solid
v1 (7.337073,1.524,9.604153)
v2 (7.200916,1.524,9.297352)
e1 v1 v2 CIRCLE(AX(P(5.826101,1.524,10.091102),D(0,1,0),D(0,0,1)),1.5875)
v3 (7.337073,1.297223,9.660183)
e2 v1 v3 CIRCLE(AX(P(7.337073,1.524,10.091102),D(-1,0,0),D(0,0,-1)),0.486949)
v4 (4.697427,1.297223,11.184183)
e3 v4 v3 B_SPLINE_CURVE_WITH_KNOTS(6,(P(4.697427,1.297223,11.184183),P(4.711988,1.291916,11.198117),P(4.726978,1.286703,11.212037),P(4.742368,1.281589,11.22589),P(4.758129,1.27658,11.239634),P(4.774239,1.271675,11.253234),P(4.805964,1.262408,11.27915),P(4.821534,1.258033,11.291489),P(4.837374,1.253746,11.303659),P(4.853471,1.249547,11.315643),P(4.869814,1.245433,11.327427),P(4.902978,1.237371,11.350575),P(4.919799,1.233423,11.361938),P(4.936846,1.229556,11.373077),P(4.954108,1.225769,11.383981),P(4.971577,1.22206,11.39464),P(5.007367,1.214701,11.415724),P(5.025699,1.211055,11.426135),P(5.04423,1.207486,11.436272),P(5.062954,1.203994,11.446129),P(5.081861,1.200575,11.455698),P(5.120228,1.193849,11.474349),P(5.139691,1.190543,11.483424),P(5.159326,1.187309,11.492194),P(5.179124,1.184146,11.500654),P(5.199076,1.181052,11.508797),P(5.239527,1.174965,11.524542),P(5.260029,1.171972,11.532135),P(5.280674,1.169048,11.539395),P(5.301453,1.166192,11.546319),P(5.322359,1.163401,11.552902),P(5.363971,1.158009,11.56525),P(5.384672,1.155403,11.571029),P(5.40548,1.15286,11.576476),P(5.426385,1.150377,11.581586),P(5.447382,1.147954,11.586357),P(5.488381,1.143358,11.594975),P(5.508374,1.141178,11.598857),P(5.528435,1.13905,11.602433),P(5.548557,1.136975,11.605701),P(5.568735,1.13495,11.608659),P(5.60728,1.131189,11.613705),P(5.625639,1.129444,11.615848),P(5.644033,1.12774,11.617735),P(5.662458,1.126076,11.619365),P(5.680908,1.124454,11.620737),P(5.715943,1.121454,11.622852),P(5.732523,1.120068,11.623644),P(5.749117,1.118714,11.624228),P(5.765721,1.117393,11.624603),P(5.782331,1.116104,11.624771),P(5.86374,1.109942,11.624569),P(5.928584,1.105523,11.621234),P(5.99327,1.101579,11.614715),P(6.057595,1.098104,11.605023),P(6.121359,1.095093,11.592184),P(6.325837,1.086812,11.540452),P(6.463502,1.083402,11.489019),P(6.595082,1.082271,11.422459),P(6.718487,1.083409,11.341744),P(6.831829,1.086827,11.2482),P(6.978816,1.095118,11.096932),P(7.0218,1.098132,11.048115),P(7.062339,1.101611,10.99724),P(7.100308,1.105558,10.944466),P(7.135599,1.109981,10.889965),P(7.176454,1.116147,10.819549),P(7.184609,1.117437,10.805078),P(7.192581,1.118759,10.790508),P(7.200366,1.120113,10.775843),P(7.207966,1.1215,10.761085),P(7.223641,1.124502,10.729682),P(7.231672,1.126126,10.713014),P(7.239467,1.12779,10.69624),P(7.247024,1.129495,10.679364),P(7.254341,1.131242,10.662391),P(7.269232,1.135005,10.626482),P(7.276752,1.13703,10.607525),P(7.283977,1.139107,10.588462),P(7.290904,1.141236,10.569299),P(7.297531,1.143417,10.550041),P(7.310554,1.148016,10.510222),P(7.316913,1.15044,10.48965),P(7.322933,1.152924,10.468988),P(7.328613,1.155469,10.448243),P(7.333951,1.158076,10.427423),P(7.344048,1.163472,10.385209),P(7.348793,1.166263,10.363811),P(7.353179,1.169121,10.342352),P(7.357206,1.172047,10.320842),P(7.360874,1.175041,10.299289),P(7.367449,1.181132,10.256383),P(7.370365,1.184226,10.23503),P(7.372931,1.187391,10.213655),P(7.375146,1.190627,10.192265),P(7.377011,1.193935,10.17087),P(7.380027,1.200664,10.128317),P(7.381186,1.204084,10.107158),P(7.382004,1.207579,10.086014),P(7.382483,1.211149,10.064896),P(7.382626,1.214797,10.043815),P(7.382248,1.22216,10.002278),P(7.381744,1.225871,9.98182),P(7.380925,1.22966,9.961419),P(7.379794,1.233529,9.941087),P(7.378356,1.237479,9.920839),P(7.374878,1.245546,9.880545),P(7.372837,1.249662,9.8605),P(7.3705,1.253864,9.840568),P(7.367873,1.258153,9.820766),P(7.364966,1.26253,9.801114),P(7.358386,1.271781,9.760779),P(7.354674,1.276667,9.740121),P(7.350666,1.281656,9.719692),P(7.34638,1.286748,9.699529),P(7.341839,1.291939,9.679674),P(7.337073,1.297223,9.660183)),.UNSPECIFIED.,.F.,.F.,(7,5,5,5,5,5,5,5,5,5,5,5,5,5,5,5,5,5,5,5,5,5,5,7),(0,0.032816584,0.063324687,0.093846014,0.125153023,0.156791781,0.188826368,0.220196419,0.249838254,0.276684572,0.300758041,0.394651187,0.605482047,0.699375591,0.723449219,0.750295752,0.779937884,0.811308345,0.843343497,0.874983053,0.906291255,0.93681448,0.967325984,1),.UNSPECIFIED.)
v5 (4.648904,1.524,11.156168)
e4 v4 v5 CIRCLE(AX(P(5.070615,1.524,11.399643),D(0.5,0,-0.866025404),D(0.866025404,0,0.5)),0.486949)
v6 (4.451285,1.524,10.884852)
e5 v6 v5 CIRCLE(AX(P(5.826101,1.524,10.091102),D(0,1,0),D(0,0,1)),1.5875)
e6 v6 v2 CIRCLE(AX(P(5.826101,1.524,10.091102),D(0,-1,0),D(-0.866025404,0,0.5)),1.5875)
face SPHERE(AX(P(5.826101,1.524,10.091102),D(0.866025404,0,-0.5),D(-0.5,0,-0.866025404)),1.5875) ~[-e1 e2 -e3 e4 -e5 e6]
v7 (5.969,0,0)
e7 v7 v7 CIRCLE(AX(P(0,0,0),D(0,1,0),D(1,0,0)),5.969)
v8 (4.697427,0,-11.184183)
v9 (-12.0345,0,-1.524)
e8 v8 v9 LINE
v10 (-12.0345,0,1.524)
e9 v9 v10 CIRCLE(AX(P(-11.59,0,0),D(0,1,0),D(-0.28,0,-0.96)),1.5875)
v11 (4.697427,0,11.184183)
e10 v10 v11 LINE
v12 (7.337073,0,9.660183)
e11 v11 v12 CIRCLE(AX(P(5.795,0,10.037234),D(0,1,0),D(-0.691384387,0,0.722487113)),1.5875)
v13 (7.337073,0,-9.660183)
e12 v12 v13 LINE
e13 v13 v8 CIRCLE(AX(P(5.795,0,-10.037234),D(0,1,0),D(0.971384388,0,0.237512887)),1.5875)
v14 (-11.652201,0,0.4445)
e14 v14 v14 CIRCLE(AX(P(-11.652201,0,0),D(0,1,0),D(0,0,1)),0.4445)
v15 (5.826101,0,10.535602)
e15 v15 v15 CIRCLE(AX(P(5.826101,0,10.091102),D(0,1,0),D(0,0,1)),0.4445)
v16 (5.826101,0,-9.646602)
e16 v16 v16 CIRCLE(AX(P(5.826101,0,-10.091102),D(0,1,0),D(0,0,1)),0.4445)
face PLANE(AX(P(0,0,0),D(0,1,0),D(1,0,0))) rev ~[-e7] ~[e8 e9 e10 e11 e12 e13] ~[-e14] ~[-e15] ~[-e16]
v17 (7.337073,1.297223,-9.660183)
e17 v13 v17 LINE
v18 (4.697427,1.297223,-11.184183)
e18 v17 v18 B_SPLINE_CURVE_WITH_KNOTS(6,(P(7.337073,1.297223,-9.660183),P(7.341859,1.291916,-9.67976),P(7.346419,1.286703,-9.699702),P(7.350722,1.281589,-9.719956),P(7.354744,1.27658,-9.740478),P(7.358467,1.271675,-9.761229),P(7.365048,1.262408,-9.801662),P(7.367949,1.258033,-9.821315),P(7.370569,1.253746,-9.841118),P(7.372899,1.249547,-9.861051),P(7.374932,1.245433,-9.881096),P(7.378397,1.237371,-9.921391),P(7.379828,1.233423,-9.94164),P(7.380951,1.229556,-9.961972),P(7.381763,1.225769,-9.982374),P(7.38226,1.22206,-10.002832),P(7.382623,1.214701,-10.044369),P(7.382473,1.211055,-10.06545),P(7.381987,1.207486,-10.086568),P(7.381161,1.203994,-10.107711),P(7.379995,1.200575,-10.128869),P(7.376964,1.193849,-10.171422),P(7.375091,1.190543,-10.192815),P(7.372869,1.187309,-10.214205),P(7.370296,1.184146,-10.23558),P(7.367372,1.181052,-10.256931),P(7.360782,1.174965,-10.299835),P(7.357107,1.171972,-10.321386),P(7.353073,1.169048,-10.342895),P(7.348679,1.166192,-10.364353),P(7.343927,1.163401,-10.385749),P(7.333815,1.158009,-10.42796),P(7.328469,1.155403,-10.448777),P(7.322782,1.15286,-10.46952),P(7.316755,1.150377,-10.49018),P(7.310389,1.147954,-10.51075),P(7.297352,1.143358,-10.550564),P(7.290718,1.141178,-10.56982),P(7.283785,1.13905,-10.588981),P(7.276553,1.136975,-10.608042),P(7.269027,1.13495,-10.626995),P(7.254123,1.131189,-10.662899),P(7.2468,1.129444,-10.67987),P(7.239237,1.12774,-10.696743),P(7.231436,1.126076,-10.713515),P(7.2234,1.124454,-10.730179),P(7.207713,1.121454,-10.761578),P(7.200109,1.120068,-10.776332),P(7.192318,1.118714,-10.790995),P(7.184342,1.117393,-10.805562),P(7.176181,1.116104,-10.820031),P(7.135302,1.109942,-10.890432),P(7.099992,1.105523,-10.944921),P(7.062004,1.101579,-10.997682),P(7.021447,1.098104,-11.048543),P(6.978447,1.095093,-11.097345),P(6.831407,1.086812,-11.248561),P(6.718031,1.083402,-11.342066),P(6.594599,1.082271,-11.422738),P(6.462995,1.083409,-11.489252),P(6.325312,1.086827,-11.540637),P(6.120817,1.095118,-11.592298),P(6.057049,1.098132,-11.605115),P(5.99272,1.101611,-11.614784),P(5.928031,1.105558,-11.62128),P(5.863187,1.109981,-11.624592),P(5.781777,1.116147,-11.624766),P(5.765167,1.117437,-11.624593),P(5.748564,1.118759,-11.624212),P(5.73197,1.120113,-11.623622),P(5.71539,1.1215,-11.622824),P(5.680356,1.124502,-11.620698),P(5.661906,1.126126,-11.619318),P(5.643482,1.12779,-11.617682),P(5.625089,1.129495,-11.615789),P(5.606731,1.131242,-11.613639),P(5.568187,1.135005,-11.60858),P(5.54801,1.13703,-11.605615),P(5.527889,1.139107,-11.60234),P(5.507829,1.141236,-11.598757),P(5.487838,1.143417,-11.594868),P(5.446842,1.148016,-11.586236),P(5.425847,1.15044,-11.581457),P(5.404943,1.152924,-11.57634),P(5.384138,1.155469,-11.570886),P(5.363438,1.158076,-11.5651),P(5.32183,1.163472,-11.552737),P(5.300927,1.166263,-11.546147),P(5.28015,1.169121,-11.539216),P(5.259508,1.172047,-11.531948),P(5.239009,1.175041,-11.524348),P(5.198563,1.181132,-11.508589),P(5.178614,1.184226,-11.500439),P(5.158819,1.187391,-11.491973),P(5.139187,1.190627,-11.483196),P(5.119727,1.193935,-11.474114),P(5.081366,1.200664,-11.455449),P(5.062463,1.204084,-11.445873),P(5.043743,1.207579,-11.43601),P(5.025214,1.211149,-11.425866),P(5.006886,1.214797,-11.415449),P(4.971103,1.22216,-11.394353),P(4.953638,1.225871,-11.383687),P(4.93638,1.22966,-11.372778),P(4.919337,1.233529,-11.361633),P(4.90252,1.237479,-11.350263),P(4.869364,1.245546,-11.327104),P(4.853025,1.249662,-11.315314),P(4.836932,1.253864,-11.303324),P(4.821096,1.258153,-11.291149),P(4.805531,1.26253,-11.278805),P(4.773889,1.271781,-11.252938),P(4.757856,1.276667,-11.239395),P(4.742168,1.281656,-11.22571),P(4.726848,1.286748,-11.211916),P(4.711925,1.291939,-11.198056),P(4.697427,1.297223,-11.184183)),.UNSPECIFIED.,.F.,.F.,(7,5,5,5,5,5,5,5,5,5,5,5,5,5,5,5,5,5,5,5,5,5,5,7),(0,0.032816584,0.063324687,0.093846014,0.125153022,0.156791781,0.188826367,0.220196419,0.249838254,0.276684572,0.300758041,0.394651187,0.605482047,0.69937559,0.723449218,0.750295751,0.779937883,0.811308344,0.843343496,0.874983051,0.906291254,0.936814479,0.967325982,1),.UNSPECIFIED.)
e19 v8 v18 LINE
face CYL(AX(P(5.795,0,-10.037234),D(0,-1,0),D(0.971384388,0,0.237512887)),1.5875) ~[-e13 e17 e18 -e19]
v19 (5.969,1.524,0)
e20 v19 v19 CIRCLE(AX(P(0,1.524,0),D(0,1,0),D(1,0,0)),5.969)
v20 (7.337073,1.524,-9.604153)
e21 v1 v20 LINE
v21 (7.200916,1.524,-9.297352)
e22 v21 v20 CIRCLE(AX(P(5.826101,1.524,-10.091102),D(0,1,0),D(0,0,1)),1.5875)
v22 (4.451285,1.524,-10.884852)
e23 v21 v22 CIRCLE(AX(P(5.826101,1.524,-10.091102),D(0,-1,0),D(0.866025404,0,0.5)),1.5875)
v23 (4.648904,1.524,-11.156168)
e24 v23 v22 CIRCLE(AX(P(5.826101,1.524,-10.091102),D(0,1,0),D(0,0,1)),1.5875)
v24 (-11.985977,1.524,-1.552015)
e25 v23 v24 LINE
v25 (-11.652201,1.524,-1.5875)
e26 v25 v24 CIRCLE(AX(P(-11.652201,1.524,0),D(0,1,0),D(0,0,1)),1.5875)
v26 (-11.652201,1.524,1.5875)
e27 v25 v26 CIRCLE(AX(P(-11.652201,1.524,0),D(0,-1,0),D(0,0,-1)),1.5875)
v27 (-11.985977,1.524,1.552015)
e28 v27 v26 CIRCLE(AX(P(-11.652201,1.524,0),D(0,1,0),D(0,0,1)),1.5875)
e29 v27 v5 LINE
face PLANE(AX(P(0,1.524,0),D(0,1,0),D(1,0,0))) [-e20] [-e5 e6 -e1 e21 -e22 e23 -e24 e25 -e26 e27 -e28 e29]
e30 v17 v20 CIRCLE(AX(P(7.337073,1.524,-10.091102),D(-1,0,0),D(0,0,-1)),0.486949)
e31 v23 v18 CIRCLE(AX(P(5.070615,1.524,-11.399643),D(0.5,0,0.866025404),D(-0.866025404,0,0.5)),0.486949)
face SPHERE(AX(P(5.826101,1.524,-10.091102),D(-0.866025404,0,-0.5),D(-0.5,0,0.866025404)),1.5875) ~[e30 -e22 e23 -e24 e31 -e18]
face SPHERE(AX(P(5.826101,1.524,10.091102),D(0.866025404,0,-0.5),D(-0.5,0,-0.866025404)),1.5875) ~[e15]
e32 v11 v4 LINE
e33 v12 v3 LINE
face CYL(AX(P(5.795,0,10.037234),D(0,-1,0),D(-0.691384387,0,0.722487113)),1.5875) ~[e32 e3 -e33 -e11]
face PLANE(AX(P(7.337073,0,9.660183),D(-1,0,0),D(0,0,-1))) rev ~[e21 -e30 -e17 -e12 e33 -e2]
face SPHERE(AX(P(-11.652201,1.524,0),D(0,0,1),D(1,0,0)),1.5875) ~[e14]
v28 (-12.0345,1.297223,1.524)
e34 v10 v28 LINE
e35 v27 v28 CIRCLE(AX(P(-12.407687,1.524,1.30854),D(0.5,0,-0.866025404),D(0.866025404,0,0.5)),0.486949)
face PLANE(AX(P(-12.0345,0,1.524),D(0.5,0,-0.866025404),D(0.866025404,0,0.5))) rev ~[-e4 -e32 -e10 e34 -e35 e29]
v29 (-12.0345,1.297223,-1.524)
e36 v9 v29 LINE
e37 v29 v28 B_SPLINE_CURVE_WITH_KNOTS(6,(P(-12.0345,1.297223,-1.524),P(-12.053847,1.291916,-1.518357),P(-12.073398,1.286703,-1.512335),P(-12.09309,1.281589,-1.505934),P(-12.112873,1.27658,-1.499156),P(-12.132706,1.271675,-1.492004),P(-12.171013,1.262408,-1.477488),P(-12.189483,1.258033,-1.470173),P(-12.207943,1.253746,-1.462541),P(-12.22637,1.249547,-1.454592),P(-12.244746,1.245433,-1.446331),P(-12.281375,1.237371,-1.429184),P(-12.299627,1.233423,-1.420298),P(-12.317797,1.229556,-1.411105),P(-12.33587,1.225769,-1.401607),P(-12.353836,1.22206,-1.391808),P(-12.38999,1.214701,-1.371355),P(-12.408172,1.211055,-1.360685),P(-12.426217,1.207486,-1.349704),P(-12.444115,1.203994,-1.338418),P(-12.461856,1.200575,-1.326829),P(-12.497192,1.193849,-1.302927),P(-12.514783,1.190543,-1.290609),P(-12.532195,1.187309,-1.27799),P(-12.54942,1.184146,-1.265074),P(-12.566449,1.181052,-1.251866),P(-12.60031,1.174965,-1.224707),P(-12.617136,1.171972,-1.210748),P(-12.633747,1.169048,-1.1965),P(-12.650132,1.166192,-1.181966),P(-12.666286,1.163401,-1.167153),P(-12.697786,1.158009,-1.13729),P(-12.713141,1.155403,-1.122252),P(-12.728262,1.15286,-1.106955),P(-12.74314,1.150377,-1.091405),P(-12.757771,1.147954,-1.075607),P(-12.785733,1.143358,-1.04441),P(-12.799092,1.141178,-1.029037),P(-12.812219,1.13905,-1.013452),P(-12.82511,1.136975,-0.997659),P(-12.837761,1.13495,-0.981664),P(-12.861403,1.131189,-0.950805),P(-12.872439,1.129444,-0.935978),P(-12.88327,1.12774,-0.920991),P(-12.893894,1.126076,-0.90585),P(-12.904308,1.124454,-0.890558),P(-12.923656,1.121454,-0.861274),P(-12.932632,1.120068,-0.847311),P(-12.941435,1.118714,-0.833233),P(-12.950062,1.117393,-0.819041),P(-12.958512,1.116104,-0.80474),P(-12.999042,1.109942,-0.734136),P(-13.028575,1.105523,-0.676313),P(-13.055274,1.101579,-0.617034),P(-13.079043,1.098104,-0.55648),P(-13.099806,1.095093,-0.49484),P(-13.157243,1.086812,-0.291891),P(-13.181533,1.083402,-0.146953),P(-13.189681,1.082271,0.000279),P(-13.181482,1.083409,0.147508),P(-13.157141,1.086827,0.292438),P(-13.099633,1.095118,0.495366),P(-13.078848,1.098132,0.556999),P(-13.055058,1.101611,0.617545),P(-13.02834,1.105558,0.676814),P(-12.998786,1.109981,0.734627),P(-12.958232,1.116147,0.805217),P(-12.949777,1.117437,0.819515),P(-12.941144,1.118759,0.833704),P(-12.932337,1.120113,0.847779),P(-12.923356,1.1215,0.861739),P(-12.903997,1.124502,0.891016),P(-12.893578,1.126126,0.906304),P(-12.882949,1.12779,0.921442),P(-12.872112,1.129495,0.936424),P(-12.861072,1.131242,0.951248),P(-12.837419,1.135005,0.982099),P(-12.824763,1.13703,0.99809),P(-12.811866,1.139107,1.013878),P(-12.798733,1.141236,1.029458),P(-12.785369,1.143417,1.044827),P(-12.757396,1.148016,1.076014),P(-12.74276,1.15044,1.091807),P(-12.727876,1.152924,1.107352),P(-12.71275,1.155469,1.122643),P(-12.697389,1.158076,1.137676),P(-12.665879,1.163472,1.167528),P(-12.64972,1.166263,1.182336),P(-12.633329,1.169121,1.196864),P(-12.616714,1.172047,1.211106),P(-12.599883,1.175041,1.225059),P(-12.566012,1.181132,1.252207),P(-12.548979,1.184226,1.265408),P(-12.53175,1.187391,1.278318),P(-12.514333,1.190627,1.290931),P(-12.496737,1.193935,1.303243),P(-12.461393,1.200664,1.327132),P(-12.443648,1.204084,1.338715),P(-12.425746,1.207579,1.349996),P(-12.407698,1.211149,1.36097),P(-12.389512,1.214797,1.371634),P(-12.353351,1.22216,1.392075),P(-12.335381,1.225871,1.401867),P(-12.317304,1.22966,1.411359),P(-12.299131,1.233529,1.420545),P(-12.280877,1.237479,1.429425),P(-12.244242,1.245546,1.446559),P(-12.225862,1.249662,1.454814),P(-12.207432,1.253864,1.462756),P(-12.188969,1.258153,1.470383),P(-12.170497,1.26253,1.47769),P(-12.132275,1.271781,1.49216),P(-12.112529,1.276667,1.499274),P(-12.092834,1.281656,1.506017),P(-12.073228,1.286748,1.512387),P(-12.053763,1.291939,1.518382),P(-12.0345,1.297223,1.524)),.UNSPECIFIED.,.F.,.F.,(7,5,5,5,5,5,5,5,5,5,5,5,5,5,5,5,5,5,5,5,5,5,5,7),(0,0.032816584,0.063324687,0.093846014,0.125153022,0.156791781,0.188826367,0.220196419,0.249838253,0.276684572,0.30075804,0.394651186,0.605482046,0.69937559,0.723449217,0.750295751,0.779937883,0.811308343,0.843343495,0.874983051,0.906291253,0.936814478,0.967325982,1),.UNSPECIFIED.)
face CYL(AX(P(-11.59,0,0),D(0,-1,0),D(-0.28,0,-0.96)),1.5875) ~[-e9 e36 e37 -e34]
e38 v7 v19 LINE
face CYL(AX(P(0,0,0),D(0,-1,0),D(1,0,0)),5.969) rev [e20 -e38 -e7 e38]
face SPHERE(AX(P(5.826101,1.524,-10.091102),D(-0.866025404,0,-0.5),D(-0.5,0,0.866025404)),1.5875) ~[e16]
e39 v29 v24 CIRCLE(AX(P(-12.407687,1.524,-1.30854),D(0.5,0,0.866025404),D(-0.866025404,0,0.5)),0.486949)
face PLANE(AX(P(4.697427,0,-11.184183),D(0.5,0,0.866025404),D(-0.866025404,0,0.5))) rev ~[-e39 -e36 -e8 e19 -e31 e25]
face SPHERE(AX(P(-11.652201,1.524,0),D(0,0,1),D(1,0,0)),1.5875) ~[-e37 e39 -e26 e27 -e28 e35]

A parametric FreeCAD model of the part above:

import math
import FreeCAD as App
import Part
import Sketcher

V = App.Vector
Q = App.Units.Quantity

doc = App.newDocument("Part")
body = doc.addObject("PartDesign::Body", "Body")

# Sketch on XZ plane
sketch1 = body.newObject("Sketcher::SketchObject", "Sketch")
sketch1.AttachmentSupport = (doc.getObject("XZ_Plane"), [""])
sketch1.MapMode = "FlatFace"
sketch1.addGeometry(Part.LineSegment(V(4.697427, -11.184183, 0), V(-12.0345, -1.524, 0)), False)
sketch1.addGeometry(Part.ArcOfCircle(Part.Circle(V(-11.59, 0, 0), V(0, 0, 1), 1.5875), math.radians(106.260205), math.radians(253.739795)), False)
sketch1.addGeometry(Part.LineSegment(V(-12.0345, 1.524, 0), V(4.697427, 11.184183, 0)), False)
sketch1.addGeometry(Part.ArcOfCircle(Part.Circle(V(5.795, 10.037234, 0), V(0, 0, 1), 1.5875), math.radians(-13.739795), math.radians(133.739795)), False)
sketch1.addGeometry(Part.LineSegment(V(7.337073, 9.660183, 0), V(7.337073, -9.660183, 0)), False)
sketch1.addGeometry(Part.ArcOfCircle(Part.Circle(V(5.795, -10.037234, 0), V(0, 0, 1), 1.5875), math.radians(-133.739795), math.radians(13.739795)), False)
sketch1.addGeometry(Part.Circle(V(0, 0, 0), V(0, 0, 1), 5.969), False)
sketch1.addConstraint(Sketcher.Constraint("Coincident", 0, 2, 1, 2))
sketch1.addConstraint(Sketcher.Constraint("Coincident", 1, 1, 2, 1))
sketch1.addConstraint(Sketcher.Constraint("Coincident", 2, 2, 3, 2))
sketch1.addConstraint(Sketcher.Constraint("Coincident", 3, 1, 4, 1))
sketch1.addConstraint(Sketcher.Constraint("Coincident", 4, 2, 5, 2))
sketch1.addConstraint(Sketcher.Constraint("Coincident", 5, 1, 0, 1))
sketch1.addConstraint(Sketcher.Constraint("Vertical", 4))
sketch1.addConstraint(Sketcher.Constraint("Coincident", 6, 3, -1, 1))
sketch1.addConstraint(Sketcher.Constraint("Equal", 1, 3))
sketch1.addConstraint(Sketcher.Constraint("Equal", 3, 5))
sketch1.addConstraint(Sketcher.Constraint("Symmetric", 3, 3, 5, 3, -1))
sketch1.addConstraint(Sketcher.Constraint("Symmetric", 0, 2, 1, 1, -1))
sketch1.addConstraint(Sketcher.Constraint("Vertical", 2, 2, 5, 1))
sketch1.addConstraint(Sketcher.Constraint("Diameter", 6, Q("0.47 in")))
sketch1.addConstraint(Sketcher.Constraint("Angle", 0, Q("150 deg")))
sketch1.addConstraint(Sketcher.Constraint("Radius", 1, Q("0.0625 in")))
sketch1.addConstraint(Sketcher.Constraint("DistanceY", 0, 2, -1, 1, Q("0.06 in")))
sketch1.addConstraint(Sketcher.Constraint("DistanceY", 3, 1, 2, 2, Q("0.06 in")))
sketch1.addConstraint(Sketcher.Constraint("DistanceX", 1, 3, -1, 1, 11.59))
sketch1.addConstraint(Sketcher.Constraint("DistanceX", -1, 1, 3, 3, 5.795))
sketch1.addConstraint(Sketcher.Constraint("DistanceY", 4, 2, 4, 1, 19.320365))
pad1 = body.newObject("PartDesign::Pad", "Pad")
pad1.Profile = sketch1
pad1.Length = Q("0.06 in")
pad1.Reversed = True

# Sketch on XZ plane
sketch2 = body.newObject("Sketcher::SketchObject", "Sketch001")
sketch2.AttachmentSupport = (doc.getObject("XZ_Plane"), [""])
sketch2.MapMode = "FlatFace"
sketch2.AttachmentOffset = App.Placement(V(0, 0, -0.06 * 25.4), App.Rotation())
sketch2.addGeometry(Part.LineSegment(V(-11.652201, -1.5875, 0), V(-11.652201, 1.5875, 0)), False)
sketch2.addGeometry(Part.ArcOfCircle(Part.Circle(V(-11.652201, 0, 0), V(0, 0, 1), 1.5875), math.radians(-90), math.radians(90)), False)
sketch2.addGeometry(Part.LineSegment(V(-11.652201, 1.5875, 0), V(-11.652201, -1.5875, 0)), True)  # axis
sketch2.addConstraint(Sketcher.Constraint("Coincident", 0, 1, 1, 1))
sketch2.addConstraint(Sketcher.Constraint("Coincident", 1, 2, 0, 2))
sketch2.addConstraint(Sketcher.Constraint("Vertical", 0))
sketch2.addConstraint(Sketcher.Constraint("Vertical", 2))
sketch2.addConstraint(Sketcher.Constraint("Coincident", 2, 1, 1, 2))
sketch2.addConstraint(Sketcher.Constraint("PointOnObject", 1, 3, -1))
sketch2.addConstraint(Sketcher.Constraint("Vertical", 1, 3, 0, 1))
sketch2.addConstraint(Sketcher.Constraint("Equal", 0, 2))
sketch2.addConstraint(Sketcher.Constraint("Radius", 1, Q("0.0625 in")))
sketch2.addConstraint(Sketcher.Constraint("DistanceX", 1, 3, -1, 1, 11.652201))
revolution = body.newObject("PartDesign::Revolution", "Revolution")
revolution.Profile = sketch2
revolution.ReferenceAxis = (sketch2, ["Axis0"])
revolution.Angle = 360
doc.recompute()

polarpattern = body.newObject("PartDesign::PolarPattern", "PolarPattern")
polarpattern.Originals = [revolution]
polarpattern.Axis = (doc.getObject("Y_Axis"), [""])
polarpattern.Angle = 360
polarpattern.Occurrences = 3
body.Tip = polarpattern

doc.recompute()
